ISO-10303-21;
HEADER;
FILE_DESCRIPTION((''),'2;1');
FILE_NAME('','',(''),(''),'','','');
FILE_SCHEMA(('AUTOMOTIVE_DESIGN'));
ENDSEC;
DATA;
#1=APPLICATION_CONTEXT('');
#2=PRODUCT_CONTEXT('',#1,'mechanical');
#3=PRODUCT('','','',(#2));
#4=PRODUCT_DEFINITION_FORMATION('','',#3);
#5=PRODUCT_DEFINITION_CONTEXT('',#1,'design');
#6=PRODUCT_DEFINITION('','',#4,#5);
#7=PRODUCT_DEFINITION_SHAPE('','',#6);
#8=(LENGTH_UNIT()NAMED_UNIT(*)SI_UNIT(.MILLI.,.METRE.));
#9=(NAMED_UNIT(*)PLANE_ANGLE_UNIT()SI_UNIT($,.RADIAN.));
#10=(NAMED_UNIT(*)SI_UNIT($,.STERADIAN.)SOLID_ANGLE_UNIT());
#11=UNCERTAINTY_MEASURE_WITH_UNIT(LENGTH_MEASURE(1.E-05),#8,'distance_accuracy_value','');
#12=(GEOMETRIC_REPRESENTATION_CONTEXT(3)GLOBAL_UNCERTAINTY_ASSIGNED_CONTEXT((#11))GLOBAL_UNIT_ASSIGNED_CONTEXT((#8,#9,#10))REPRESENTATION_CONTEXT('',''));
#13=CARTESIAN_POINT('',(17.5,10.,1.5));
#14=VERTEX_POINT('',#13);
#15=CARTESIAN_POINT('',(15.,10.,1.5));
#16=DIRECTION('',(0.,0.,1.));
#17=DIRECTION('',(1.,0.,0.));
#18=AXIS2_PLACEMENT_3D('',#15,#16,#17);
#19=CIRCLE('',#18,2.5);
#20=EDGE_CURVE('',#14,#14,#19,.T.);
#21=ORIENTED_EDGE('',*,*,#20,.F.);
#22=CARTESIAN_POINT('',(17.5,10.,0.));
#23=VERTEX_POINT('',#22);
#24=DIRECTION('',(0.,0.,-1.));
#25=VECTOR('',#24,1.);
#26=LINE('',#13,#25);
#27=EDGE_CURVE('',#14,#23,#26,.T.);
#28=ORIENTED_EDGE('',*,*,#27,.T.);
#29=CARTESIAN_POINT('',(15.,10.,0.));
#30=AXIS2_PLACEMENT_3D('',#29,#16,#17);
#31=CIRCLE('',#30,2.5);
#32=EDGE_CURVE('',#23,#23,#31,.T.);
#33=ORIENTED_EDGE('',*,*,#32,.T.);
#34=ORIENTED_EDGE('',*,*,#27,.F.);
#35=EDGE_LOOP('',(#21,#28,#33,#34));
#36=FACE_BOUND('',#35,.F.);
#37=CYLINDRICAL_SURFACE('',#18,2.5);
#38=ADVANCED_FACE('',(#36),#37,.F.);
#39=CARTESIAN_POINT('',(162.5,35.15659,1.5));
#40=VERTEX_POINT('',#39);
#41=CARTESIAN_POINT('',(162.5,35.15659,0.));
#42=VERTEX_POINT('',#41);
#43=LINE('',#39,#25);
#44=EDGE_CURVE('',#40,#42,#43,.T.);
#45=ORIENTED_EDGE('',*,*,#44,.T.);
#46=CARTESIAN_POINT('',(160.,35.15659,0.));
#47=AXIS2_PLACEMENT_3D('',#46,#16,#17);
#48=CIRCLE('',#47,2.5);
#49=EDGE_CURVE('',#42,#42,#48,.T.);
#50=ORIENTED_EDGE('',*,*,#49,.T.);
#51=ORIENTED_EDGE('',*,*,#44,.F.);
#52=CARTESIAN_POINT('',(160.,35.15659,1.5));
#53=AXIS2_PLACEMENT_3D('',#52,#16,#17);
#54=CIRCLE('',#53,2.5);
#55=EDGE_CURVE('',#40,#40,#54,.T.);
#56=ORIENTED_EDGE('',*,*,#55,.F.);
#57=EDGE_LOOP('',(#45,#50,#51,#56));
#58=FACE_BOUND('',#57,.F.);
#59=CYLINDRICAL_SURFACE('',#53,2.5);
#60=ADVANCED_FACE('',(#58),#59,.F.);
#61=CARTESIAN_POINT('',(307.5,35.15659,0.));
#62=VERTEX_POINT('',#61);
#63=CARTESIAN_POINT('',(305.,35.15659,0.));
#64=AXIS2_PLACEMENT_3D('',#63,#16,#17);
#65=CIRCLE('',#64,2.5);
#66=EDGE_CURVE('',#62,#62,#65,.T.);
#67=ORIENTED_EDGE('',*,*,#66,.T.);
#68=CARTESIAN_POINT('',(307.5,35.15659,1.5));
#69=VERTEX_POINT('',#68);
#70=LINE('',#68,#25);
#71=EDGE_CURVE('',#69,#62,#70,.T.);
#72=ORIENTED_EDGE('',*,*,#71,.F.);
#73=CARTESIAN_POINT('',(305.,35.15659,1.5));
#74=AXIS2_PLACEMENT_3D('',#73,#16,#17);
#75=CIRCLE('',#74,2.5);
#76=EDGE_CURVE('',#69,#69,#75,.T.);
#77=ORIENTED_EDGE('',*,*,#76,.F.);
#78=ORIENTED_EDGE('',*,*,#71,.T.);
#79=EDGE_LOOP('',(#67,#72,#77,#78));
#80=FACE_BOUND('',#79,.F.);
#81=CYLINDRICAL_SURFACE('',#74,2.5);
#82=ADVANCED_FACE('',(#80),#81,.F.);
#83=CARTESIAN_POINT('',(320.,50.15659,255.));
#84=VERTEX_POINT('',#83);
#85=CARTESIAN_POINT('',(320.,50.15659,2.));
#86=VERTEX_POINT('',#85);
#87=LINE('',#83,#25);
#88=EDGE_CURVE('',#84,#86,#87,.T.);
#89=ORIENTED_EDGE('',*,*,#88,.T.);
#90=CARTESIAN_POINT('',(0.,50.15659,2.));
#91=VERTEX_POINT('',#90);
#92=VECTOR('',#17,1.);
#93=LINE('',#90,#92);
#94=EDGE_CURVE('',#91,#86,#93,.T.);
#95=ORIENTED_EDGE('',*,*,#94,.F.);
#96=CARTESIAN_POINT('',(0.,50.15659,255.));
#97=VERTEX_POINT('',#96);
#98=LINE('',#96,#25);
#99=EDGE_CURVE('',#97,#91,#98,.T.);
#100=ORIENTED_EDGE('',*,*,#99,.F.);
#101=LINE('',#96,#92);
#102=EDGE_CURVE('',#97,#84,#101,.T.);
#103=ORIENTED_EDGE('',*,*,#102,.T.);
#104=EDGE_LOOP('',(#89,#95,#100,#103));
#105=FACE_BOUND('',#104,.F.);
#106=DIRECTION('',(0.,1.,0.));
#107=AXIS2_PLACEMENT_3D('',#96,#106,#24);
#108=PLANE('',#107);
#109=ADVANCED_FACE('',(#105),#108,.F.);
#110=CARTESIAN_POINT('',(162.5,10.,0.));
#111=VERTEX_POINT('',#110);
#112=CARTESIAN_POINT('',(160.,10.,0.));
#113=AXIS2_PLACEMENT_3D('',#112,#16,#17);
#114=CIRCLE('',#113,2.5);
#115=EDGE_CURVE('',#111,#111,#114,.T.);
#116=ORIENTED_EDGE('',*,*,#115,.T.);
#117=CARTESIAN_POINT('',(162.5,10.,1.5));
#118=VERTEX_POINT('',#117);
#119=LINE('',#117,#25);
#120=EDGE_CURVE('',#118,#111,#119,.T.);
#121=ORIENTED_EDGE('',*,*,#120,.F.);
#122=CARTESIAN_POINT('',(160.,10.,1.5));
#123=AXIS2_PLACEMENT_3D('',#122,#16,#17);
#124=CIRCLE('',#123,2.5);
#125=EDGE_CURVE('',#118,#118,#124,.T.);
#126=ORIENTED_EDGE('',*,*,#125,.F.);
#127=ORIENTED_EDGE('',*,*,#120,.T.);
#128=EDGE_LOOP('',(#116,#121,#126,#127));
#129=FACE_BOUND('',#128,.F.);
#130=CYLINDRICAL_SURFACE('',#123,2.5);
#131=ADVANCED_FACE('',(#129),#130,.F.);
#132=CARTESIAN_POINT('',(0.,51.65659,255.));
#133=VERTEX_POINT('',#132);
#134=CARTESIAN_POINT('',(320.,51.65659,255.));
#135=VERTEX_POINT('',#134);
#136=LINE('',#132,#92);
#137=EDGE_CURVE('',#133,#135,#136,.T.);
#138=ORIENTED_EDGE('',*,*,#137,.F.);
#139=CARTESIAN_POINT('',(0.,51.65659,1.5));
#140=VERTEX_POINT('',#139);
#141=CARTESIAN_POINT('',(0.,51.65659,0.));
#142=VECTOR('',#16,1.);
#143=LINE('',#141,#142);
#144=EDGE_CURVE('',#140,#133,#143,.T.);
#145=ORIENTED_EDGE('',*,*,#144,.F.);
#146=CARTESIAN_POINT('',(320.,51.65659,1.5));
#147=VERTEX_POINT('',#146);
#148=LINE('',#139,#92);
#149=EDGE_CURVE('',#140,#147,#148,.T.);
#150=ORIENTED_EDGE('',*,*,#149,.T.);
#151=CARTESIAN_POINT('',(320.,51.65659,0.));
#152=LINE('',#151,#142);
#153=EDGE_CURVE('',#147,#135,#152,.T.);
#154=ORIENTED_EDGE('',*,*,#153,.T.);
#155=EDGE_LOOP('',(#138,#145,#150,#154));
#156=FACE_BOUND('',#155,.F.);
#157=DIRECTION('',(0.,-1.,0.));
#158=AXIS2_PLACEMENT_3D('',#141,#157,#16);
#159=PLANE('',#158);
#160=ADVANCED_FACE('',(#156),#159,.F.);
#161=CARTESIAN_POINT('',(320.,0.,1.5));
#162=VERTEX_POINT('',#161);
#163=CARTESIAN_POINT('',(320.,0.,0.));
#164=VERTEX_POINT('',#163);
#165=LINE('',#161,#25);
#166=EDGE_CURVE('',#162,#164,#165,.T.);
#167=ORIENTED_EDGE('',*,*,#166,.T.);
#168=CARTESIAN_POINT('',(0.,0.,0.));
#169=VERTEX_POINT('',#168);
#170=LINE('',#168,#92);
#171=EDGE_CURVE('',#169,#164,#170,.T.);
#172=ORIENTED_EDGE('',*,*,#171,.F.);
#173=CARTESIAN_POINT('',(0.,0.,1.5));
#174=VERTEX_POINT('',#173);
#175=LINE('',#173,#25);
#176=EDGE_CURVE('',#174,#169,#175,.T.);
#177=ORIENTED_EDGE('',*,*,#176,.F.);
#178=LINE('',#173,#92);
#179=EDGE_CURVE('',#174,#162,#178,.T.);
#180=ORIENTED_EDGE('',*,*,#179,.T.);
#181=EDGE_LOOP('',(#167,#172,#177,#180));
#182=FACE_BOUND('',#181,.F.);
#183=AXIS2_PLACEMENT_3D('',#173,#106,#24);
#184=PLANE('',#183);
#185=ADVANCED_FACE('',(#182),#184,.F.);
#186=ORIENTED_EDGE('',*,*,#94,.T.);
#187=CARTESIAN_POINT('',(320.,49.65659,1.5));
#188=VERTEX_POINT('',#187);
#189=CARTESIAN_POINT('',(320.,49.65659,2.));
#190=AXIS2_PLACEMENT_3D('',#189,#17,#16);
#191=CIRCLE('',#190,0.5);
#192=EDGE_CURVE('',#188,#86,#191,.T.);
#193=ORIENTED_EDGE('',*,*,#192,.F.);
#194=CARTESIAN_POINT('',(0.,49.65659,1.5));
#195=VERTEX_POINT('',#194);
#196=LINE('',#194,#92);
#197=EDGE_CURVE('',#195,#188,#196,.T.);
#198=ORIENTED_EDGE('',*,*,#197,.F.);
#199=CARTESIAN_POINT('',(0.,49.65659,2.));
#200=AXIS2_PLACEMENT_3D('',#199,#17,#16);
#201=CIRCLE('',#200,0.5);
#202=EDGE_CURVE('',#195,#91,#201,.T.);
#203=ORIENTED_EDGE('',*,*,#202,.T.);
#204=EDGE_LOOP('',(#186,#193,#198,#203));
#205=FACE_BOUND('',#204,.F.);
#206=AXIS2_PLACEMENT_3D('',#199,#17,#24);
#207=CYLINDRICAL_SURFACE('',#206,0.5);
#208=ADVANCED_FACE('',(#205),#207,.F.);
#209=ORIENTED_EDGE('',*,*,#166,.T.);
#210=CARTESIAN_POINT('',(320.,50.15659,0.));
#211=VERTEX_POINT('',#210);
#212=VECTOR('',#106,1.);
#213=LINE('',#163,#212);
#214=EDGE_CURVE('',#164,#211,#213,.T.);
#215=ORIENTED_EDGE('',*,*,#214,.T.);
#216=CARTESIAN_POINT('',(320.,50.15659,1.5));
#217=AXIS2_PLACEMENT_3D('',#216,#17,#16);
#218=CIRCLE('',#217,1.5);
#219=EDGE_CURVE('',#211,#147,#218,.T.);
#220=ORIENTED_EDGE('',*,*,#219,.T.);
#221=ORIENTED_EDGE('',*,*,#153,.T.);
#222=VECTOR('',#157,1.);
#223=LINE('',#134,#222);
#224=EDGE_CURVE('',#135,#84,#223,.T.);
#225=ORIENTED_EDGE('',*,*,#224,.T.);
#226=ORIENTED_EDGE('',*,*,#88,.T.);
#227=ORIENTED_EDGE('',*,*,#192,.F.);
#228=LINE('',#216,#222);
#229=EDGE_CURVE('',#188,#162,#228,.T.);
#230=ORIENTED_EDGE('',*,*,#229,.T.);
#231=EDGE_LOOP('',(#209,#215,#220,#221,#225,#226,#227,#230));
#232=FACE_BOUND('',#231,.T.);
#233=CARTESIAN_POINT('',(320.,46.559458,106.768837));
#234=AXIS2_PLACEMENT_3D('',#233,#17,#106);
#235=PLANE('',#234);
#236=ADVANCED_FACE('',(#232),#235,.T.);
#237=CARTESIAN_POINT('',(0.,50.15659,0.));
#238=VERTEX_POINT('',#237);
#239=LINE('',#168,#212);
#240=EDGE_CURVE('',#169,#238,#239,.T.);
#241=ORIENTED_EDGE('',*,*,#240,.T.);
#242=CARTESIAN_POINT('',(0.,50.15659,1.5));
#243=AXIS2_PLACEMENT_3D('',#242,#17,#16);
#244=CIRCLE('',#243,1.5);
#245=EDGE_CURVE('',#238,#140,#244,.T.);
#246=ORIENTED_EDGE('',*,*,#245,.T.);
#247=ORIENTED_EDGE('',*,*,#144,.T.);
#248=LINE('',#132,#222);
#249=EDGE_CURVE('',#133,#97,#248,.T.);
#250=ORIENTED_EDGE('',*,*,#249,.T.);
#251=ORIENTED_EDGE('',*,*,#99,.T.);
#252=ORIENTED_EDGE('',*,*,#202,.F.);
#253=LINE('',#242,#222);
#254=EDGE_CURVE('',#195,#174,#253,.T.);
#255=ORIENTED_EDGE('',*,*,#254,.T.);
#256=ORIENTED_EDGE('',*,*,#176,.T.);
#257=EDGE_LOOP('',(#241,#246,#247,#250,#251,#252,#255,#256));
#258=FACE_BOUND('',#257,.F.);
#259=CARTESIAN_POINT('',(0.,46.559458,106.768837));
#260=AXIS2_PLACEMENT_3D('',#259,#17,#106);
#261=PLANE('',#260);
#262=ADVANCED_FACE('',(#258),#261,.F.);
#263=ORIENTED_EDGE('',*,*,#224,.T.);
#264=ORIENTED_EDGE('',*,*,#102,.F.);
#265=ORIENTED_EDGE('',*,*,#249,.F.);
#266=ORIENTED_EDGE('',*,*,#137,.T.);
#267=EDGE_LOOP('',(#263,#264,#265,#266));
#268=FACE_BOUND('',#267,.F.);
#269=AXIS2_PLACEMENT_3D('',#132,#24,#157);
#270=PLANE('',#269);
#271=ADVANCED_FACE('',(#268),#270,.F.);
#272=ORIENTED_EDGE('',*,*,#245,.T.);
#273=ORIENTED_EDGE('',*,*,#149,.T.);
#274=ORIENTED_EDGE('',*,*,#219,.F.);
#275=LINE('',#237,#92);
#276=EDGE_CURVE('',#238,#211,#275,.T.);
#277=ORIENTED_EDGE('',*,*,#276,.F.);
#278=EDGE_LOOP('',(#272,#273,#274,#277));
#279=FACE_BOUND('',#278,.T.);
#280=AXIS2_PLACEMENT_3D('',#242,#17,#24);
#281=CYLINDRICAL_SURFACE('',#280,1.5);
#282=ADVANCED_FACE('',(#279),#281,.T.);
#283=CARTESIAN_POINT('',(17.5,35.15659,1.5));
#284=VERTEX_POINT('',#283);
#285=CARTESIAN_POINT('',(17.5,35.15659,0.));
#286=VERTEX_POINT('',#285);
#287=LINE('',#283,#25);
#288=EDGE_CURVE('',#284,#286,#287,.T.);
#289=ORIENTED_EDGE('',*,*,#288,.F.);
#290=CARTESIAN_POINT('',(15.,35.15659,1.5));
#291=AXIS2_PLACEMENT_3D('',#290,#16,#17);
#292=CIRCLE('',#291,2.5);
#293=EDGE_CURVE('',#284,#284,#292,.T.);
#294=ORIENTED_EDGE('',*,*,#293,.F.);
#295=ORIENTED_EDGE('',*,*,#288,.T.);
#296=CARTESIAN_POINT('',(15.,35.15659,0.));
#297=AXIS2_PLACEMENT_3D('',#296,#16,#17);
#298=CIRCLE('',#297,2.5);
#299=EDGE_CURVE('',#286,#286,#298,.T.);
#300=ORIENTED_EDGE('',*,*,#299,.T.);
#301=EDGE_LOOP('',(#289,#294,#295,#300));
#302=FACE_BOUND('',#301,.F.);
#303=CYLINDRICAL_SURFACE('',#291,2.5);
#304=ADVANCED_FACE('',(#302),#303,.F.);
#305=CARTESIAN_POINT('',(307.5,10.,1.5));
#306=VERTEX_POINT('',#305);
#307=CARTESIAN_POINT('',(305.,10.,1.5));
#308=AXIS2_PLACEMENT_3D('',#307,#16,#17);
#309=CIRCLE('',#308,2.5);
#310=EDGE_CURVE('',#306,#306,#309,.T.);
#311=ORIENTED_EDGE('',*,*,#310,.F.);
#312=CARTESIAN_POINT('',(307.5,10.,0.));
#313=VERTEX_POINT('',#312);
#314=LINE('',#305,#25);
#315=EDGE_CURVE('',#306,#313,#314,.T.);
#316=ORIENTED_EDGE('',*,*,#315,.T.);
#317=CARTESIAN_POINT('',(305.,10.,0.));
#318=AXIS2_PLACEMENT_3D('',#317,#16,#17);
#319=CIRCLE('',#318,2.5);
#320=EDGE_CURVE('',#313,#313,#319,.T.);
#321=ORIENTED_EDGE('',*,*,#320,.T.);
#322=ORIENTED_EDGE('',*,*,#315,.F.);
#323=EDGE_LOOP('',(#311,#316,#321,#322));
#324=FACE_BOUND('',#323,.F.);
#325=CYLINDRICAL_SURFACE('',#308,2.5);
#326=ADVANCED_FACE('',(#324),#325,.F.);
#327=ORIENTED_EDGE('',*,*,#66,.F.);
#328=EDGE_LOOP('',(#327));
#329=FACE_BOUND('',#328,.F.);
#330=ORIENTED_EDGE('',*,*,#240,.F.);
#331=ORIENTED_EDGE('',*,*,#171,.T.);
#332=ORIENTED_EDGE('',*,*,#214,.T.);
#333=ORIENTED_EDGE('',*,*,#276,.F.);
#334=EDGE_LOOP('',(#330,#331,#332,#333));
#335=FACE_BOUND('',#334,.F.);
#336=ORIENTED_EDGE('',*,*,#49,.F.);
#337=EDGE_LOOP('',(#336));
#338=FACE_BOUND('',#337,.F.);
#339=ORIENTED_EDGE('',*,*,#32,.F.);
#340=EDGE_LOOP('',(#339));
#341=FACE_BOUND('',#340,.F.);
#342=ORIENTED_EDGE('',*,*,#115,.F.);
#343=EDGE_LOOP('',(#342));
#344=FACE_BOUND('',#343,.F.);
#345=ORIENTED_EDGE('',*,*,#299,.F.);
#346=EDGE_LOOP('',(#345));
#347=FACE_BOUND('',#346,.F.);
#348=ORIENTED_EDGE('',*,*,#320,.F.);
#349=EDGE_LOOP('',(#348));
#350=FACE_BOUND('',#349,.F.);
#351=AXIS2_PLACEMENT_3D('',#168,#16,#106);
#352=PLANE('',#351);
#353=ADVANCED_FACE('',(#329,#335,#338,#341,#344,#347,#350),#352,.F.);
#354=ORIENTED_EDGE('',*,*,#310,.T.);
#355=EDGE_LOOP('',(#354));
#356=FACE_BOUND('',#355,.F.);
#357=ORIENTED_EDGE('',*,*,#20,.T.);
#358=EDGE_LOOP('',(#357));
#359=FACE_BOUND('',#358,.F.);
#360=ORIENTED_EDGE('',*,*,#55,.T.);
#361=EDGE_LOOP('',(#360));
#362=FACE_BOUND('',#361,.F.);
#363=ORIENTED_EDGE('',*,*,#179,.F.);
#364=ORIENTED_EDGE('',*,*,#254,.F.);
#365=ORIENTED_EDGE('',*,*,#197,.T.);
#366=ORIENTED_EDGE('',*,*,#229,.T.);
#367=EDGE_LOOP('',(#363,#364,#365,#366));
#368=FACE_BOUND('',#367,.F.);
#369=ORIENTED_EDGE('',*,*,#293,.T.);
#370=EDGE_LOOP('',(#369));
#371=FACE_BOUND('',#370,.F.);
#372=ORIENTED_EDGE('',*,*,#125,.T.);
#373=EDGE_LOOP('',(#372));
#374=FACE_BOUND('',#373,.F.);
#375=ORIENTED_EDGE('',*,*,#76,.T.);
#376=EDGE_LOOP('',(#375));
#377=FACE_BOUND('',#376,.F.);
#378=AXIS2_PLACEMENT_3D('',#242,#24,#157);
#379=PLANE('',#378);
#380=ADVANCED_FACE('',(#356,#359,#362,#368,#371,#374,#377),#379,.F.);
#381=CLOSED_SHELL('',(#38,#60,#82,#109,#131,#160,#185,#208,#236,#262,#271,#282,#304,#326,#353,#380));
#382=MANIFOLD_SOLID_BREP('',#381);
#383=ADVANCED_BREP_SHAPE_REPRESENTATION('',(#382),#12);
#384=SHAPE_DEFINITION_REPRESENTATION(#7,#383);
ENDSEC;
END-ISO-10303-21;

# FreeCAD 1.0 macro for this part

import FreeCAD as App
import Part
import Sketcher
Q = App.Units.Quantity


def edges_at(feature, points):
    """Names of the edges that pass closest to the given points."""
    edges = feature.Shape.Edges
    near = lambda p: min(range(len(edges)), key=lambda i: edges[i].distToShape(Part.Vertex(*p))[0])
    return sorted({f"Edge{near(p) + 1}" for p in points})

doc = App.newDocument("Part")
body = doc.addObject("PartDesign::Body", "Body")

sketch1 = doc.addObject("Sketcher::SketchObject", "Sketch")
body.addObject(sketch1)
sketch1.AttachmentSupport = (doc.YZ_Plane, [""])
sketch1.MapMode = "FlatFace"
sketch1.addGeometry([
    Part.LineSegment(App.Vector(0, 1.5, 0), App.Vector(0, 0, 0)),
    Part.LineSegment(App.Vector(0, 0, 0), App.Vector(51.7, 0, 0)),
    Part.LineSegment(App.Vector(51.7, 0, 0), App.Vector(51.7, 255, 0)),
    Part.LineSegment(App.Vector(51.7, 255, 0), App.Vector(50.2, 255, 0)),
    Part.LineSegment(App.Vector(50.2, 255, 0), App.Vector(50.2, 1.5, 0)),
    Part.LineSegment(App.Vector(50.2, 1.5, 0), App.Vector(0, 1.5, 0)),
], False)
sketch1.addConstraint([
    Sketcher.Constraint("Coincident", 0, 2, 1, 1),
    Sketcher.Constraint("Coincident", 1, 2, 2, 1),
    Sketcher.Constraint("Coincident", 2, 2, 3, 1),
    Sketcher.Constraint("Coincident", 3, 2, 4, 1),
    Sketcher.Constraint("Coincident", 4, 2, 5, 1),
    Sketcher.Constraint("Coincident", 5, 2, 0, 1),
    Sketcher.Constraint("Vertical", 0),
    Sketcher.Constraint("Horizontal", 1),
    Sketcher.Constraint("Vertical", 2),
    Sketcher.Constraint("Horizontal", 3),
    Sketcher.Constraint("Vertical", 4),
    Sketcher.Constraint("Horizontal", 5),
    Sketcher.Constraint("Coincident", 0, 2, -1, 1),
    Sketcher.Constraint("Equal", 3, 0),
    Sketcher.Constraint("DistanceY", 2, 1, 2, 2, Q("255 mm")),
    Sketcher.Constraint("DistanceX", 3, 2, 3, 1, Q("1.5 mm")),
    Sketcher.Constraint("DistanceX", 1, 1, 1, 2, Q("51.65659 mm")),
])
pad1 = doc.addObject("PartDesign::Pad", "Pad")
body.addObject(pad1)
pad1.Profile = sketch1
pad1.Length = 320
doc.recompute()

fillet = doc.addObject("PartDesign::Fillet", "Fillet")
body.addObject(fillet)
fillet.Base = (pad1, edges_at(pad1, [(160, 51.657, 0)]))
fillet.Radius = 1.5
doc.recompute()

fillet2 = doc.addObject("PartDesign::Fillet", "Fillet001")
body.addObject(fillet2)
fillet2.Base = (fillet, edges_at(fillet, [(160, 50.157, 1.5)]))
fillet2.Radius = 0.5

sketch2 = doc.addObject("Sketcher::SketchObject", "Sketch001")
body.addObject(sketch2)
sketch2.AttachmentSupport = (doc.XY_Plane, [""])
sketch2.MapMode = "FlatFace"
sketch2.AttachmentOffset = App.Placement(App.Vector(0, 0, 1.5), App.Rotation())
sketch2.addGeometry([
    Part.Circle(App.Vector(15, 35.2, 0), App.Vector(0, 0, 1), 2.5),
    Part.Circle(App.Vector(15, 10, 0), App.Vector(0, 0, 1), 2.5),
    Part.Circle(App.Vector(160, 10, 0), App.Vector(0, 0, 1), 2.5),
    Part.Circle(App.Vector(160, 35.2, 0), App.Vector(0, 0, 1), 2.5),
    Part.Circle(App.Vector(305, 35.2, 0), App.Vector(0, 0, 1), 2.5),
    Part.Circle(App.Vector(305, 10, 0), App.Vector(0, 0, 1), 2.5),
], False)
sketch2.addConstraint([
    Sketcher.Constraint("Equal", 0, 1),
    Sketcher.Constraint("Equal", 1, 2),
    Sketcher.Constraint("Equal", 2, 3),
    Sketcher.Constraint("Equal", 3, 4),
    Sketcher.Constraint("Equal", 4, 5),
    Sketcher.Constraint("Horizontal", 1, 3, 2, 3),
    Sketcher.Constraint("Horizontal", 0, 3, 3, 3),
    Sketcher.Constraint("Horizontal", 3, 3, 4, 3),
    Sketcher.Constraint("Horizontal", 2, 3, 5, 3),
    Sketcher.Constraint("Vertical", 0, 3, 1, 3),
    Sketcher.Constraint("Vertical", 2, 3, 3, 3),
    Sketcher.Constraint("Vertical", 4, 3, 5, 3),
    Sketcher.Constraint("Diameter", 0, Q("5 mm")),
    Sketcher.Constraint("DistanceX", -1, 1, 0, 3, Q("15 mm")),
    Sketcher.Constraint("DistanceY", -1, 1, 1, 3, Q("10 mm")),
    Sketcher.Constraint("DistanceX", -1, 1, 2, 3, Q("160 mm")),
    Sketcher.Constraint("DistanceX", -1, 1, 4, 3, Q("305 mm")),
    Sketcher.Constraint("DistanceY", -1, 1, 0, 3, Q("35.15659 mm")),
])
pocket1 = doc.addObject("PartDesign::Pocket", "Pocket")
body.addObject(pocket1)
pocket1.Profile = sketch2
pocket1.Type = "ThroughAll"

doc.recompute()
